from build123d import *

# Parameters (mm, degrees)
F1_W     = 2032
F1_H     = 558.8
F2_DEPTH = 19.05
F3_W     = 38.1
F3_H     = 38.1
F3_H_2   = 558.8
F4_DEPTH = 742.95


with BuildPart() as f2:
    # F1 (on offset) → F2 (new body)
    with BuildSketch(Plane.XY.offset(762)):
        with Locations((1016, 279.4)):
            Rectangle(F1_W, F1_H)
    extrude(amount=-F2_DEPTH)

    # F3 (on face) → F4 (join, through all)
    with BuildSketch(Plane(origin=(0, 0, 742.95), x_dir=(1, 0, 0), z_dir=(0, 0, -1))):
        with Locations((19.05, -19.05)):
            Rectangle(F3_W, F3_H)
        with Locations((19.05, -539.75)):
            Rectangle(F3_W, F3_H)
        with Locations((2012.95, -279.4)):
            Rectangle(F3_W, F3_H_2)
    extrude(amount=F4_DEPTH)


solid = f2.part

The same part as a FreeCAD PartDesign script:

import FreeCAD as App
import Part
import Sketcher
Q = App.Units.Quantity


def add_polygon(sketch, points):
    """Adds a closed chain of lines whose ends are joined by coincident constraints."""
    first, n = sketch.GeometryCount, len(points)
    for a, b in zip(points, points[1:] + points[:1]):
        sketch.addGeometry(Part.LineSegment(App.Vector(*a, 0), App.Vector(*b, 0)), False)
    for i in range(n):
        sketch.addConstraint(Sketcher.Constraint("Coincident", first + i, 2, first + (i + 1) % n, 1))

doc = App.newDocument("Part")
params = doc.addObject("Spreadsheet::Sheet", "Params")
for row, (alias, value) in enumerate([
    ("sketch1_width", "80 in"),
    ("sketch1_height", "22 in"),
    ("pad1_length", "0.75 in"),
    ("sketch2_height", "22 in"),
    ("sketch2_width", "1.5 in"),
    ("pad2_length", "29.25 in"),
], start=1):
    params.set(f"A{row}", alias)
    params.set(f"B{row}", "=" + value)
    params.setAlias(f"B{row}", alias)

body = doc.addObject("PartDesign::Body", "Body")

# Sketch on XY plane
sketch1 = doc.addObject("Sketcher::SketchObject", "Sketch")
body.addObject(sketch1)
sketch1.AttachmentSupport = (doc.XY_Plane, [""])
sketch1.MapMode = "FlatFace"
sketch1.AttachmentOffset = App.Placement(App.Vector(0, 0, 30 * 25.4), App.Rotation())
add_polygon(sketch1, [(0, 559), (0, 0), (2032, 0), (2032, 559)])  # lines 0-3
sketch1.addConstraint(Sketcher.Constraint("Vertical", 0))
sketch1.addConstraint(Sketcher.Constraint("Horizontal", 1))
sketch1.addConstraint(Sketcher.Constraint("Vertical", 2))
sketch1.addConstraint(Sketcher.Constraint("Horizontal", 3))
sketch1.addConstraint(Sketcher.Constraint("Coincident", 0, 2, -1, 1))
sketch1.addConstraint(Sketcher.Constraint("DistanceX", 1, 1, 1, 2, Q("80 in")))
sketch1.addConstraint(Sketcher.Constraint("DistanceY", 0, 2, 0, 1, Q("22 in")))
sketch1.setExpression("Constraints[9]", "Params.sketch1_width")
sketch1.setExpression("Constraints[10]", "Params.sketch1_height")
pad1 = doc.addObject("PartDesign::Pad", "Pad")
body.addObject(pad1)
pad1.Profile = sketch1
pad1.setExpression("Length", "Params.pad1_length")
pad1.Reversed = True

# Sketch on XY plane
sketch2 = doc.addObject("Sketcher::SketchObject", "Sketch001")
body.addObject(sketch2)
sketch2.AttachmentSupport = (doc.XY_Plane, [""])
sketch2.MapMode = "FlatFace"
sketch2.AttachmentOffset = App.Placement(App.Vector(0, 0, 29.25 * 25.4), App.Rotation())
add_polygon(sketch2, [(0, 0), (0, 38), (38, 38), (38, 0)])  # lines 0-3
add_polygon(sketch2, [(0, 521), (0, 559), (38, 559), (38, 521)])  # lines 4-7
add_polygon(sketch2, [(1994, 0), (1994, 559), (2032, 559), (2032, 0)])  # lines 8-11
sketch2.addConstraint(Sketcher.Constraint("Vertical", 0))
sketch2.addConstraint(Sketcher.Constraint("Horizontal", 1))
sketch2.addConstraint(Sketcher.Constraint("Vertical", 2))
sketch2.addConstraint(Sketcher.Constraint("Horizontal", 3))
sketch2.addConstraint(Sketcher.Constraint("Vertical", 4))
sketch2.addConstraint(Sketcher.Constraint("Horizontal", 5))
sketch2.addConstraint(Sketcher.Constraint("Vertical", 6))
sketch2.addConstraint(Sketcher.Constraint("Horizontal", 7))
sketch2.addConstraint(Sketcher.Constraint("Vertical", 8))
sketch2.addConstraint(Sketcher.Constraint("Horizontal", 9))
sketch2.addConstraint(Sketcher.Constraint("Vertical", 10))
sketch2.addConstraint(Sketcher.Constraint("Horizontal", 11))
sketch2.addConstraint(Sketcher.Constraint("Coincident", 3, 2, -1, 1))
sketch2.addConstraint(Sketcher.Constraint("PointOnObject", 4, 2, -2))
sketch2.addConstraint(Sketcher.Constraint("PointOnObject", 10, 2, -1))
sketch2.addConstraint(Sketcher.Constraint("Horizontal", 5, 2, 8, 2))
sketch2.addConstraint(Sketcher.Constraint("Vertical", 2, 2, 5, 2))
sketch2.addConstraint(Sketcher.Constraint("Equal", 7, 9))
sketch2.addConstraint(Sketcher.Constraint("Equal", 11, 0))
sketch2.addConstraint(Sketcher.Constraint("Equal", 2, 4))
sketch2.addConstraint(Sketcher.Constraint("DistanceY", 8, 1, 8, 2, Q("22 in")))
sketch2.addConstraint(Sketcher.Constraint("DistanceX", 1, 1, 1, 2, Q("1.5 in")))
sketch2.addConstraint(Sketcher.Constraint("DistanceX", -1, 1, 9, 2, Q("80 in")))
sketch2.setExpression("Constraints[32]", "Params.sketch2_height")
sketch2.setExpression("Constraints[33]", "Params.sketch2_width")
pad2 = doc.addObject("PartDesign::Pad", "Pad001")
body.addObject(pad2)
pad2.Profile = sketch2
pad2.setExpression("Length", "Params.pad2_length")
pad2.Reversed = True

doc.recompute()
